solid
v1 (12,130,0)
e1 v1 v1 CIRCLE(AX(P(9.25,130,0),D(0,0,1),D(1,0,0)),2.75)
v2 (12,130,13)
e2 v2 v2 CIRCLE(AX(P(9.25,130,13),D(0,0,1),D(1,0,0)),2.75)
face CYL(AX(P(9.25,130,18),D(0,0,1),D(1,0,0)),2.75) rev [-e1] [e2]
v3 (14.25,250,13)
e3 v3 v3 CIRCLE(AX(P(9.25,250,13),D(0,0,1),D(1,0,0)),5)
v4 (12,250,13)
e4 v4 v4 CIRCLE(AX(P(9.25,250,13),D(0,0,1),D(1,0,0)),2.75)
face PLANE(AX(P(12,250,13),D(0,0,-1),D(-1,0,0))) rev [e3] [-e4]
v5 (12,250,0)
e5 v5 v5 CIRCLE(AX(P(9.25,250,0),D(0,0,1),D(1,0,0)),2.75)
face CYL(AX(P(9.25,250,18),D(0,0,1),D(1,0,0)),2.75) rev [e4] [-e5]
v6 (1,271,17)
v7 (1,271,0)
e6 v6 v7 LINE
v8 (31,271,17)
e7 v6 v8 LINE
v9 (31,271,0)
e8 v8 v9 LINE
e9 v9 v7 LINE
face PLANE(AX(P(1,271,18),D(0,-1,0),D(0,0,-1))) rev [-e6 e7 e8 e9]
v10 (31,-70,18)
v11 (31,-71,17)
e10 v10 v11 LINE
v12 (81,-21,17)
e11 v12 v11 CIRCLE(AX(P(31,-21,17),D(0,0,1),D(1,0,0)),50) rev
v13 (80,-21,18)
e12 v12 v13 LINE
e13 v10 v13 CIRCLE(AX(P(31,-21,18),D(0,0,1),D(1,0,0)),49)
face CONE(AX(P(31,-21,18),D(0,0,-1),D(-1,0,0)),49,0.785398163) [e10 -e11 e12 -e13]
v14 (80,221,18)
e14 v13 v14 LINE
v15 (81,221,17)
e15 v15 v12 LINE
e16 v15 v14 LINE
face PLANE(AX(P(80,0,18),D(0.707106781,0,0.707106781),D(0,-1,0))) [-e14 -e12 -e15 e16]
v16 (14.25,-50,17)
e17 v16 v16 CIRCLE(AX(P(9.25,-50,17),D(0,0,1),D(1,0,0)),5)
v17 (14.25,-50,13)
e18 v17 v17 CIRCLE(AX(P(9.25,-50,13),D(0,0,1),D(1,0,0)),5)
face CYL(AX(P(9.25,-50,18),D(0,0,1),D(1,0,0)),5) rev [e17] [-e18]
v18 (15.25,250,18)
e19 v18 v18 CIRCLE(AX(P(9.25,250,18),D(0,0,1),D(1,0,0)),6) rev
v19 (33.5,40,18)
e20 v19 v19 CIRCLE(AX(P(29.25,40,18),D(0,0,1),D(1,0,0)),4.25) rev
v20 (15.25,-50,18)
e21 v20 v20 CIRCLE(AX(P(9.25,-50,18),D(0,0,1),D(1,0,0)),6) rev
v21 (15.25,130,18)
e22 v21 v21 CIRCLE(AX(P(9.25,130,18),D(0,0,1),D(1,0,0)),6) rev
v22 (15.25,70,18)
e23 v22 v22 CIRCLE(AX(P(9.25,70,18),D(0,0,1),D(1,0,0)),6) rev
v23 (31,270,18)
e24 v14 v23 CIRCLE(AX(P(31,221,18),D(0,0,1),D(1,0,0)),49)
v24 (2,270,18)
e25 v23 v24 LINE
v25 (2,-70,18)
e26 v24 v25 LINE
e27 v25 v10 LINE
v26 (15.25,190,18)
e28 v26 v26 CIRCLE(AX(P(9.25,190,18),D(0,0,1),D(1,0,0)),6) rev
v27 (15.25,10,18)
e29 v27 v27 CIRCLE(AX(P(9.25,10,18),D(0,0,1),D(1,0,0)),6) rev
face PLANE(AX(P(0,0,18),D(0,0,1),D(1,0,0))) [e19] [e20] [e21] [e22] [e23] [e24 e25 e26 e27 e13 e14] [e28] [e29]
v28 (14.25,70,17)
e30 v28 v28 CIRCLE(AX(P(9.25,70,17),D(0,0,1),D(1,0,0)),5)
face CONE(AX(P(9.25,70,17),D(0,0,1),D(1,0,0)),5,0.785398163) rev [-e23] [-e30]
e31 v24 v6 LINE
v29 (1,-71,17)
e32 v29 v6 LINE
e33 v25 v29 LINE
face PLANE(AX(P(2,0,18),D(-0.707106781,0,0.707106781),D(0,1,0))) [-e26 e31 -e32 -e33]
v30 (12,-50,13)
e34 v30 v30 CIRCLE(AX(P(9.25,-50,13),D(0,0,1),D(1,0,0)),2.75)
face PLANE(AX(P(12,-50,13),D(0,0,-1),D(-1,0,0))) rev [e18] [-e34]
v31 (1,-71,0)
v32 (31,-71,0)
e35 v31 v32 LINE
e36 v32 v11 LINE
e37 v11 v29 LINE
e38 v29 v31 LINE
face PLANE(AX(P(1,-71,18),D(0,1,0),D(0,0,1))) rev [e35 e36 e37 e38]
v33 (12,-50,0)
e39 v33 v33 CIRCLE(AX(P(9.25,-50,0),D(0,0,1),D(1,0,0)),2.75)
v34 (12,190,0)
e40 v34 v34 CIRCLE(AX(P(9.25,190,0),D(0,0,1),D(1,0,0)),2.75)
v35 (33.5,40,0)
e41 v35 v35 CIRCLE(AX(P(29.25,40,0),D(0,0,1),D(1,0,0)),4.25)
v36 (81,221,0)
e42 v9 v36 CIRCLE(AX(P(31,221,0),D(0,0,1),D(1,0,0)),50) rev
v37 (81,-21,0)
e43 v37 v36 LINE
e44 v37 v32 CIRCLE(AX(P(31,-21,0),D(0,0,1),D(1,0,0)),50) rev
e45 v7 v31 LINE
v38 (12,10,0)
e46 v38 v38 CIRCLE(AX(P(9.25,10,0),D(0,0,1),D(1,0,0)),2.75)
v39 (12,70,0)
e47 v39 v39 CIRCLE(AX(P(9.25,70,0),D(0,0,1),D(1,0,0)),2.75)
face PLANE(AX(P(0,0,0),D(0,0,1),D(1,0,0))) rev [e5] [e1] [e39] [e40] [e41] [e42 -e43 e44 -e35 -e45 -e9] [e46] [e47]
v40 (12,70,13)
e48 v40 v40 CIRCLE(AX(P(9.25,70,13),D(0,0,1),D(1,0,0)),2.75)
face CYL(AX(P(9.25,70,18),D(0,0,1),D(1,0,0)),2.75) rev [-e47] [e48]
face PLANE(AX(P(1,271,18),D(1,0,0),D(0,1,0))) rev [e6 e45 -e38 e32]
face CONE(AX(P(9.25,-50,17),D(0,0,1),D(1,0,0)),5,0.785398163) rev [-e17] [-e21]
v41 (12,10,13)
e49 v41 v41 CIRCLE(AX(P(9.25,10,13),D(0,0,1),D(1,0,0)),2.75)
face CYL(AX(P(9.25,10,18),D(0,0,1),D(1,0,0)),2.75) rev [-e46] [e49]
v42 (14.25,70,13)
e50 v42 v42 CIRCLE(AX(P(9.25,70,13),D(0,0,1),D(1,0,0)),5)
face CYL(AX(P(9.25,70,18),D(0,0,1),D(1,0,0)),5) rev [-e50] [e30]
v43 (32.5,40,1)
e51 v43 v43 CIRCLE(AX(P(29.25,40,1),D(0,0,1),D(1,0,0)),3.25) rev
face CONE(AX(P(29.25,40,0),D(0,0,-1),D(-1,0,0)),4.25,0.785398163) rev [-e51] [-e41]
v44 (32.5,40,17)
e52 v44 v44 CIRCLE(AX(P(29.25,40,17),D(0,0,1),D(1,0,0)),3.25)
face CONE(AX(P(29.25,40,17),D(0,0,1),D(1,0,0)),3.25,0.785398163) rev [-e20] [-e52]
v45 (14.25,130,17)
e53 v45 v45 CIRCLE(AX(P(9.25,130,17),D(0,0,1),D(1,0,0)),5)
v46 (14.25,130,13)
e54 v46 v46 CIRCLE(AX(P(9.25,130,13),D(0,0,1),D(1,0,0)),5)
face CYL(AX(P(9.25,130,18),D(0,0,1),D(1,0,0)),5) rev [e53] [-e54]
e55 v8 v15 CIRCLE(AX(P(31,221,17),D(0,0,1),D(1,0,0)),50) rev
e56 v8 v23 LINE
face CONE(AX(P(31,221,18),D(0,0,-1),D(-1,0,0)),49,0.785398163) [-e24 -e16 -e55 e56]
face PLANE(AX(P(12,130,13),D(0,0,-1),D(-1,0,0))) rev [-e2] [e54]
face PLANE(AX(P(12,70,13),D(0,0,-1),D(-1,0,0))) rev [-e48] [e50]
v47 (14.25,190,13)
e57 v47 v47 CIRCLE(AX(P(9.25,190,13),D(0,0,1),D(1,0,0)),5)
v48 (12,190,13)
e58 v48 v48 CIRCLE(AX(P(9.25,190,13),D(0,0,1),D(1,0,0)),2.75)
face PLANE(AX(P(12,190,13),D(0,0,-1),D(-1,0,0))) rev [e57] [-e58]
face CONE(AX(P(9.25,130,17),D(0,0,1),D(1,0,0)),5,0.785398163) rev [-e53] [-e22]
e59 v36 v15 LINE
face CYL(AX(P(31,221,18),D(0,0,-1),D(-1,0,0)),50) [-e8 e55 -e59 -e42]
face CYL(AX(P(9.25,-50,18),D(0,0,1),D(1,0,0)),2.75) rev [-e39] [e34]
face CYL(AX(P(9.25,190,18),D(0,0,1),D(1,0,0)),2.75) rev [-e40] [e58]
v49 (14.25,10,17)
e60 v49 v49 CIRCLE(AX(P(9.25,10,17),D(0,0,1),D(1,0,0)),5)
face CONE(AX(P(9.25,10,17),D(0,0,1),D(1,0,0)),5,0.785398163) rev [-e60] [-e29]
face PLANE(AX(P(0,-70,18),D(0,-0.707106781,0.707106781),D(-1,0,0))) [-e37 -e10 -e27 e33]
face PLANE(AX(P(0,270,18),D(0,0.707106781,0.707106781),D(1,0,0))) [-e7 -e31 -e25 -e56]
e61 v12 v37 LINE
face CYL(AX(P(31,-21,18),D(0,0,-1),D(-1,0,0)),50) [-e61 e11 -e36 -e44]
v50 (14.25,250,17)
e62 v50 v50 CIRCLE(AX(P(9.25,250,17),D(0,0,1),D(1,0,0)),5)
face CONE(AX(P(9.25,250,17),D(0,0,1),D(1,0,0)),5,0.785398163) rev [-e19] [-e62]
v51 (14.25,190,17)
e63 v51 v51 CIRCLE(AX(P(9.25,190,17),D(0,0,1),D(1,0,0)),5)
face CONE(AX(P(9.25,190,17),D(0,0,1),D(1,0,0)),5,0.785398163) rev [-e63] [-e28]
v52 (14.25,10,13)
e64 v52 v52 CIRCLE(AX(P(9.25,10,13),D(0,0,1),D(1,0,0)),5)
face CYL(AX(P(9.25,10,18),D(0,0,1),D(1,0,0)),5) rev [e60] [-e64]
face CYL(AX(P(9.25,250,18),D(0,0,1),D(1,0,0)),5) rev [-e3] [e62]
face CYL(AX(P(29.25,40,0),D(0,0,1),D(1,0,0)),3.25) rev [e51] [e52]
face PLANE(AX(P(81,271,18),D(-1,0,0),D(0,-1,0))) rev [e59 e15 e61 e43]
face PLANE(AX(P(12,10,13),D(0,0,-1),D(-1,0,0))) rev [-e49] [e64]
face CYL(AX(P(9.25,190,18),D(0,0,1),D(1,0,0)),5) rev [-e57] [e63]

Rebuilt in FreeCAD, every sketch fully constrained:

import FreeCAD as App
import Part
import Sketcher
from FreeCAD import Vector
Q = App.Units.Quantity


def edges_at(feature, points):
    """Names of the edges that pass closest to the given points."""
    edges = feature.Shape.Edges
    near = lambda p: min(range(len(edges)), key=lambda i: edges[i].distToShape(Part.Vertex(*p))[0])
    return sorted({f"Edge{near(p) + 1}" for p in points})

doc = App.newDocument("Part")
params = doc.addObject("Spreadsheet::Sheet", "Params")
for row, (alias, value) in enumerate([
    ("sketch1_width", "80 mm"),
    ("sketch1_height", "342 mm"),
    ("pad1_length", "18 mm"),
    ("fillet_radius", "50 mm"),
    ("sketch2_diameter", "5.5 mm"),
    ("hole_diameter", "5.5 mm"),
    ("hole_depth", "28.347633 mm"),
    ("hole_cbore_diameter", "10 mm"),
    ("hole_cbore_depth", "5 mm"),
    ("chamfer_size", "1 mm"),
    ("sketch3_diameter", "6.5 mm"),
    ("chamfer2_size", "1 mm"),
], start=1):
    params.set(f"A{row}", alias)
    params.set(f"B{row}", "=" + value)
    params.setAlias(f"B{row}", alias)

body = doc.addObject("PartDesign::Body", "Body")

sketch1 = body.newObject("Sketcher::SketchObject", "Sketch")
sketch1.AttachmentSupport = (doc.getObject("XY_Plane"), [""])
sketch1.MapMode = "FlatFace"
sketch1.addGeometry([
    Part.LineSegment(Vector(1, 271, 0), Vector(1, -71, 0)),
    Part.LineSegment(Vector(1, -71, 0), Vector(81, -71, 0)),
    Part.LineSegment(Vector(81, -71, 0), Vector(81, 271, 0)),
    Part.LineSegment(Vector(81, 271, 0), Vector(1, 271, 0)),
], False)
sketch1.addConstraint([
    Sketcher.Constraint("Coincident", 0, 2, 1, 1),
    Sketcher.Constraint("Coincident", 1, 2, 2, 1),
    Sketcher.Constraint("Coincident", 2, 2, 3, 1),
    Sketcher.Constraint("Coincident", 3, 2, 0, 1),
    Sketcher.Constraint("Vertical", 0),
    Sketcher.Constraint("Horizontal", 1),
    Sketcher.Constraint("Vertical", 2),
    Sketcher.Constraint("Horizontal", 3),
    Sketcher.Constraint("DistanceX", 1, 1, 1, 2, Q("80 mm")),
    Sketcher.Constraint("DistanceY", 0, 2, 0, 1, Q("342 mm")),
    Sketcher.Constraint("DistanceX", -1, 1, 0, 2, Q("1 mm")),
    Sketcher.Constraint("DistanceY", 0, 2, -1, 1, Q("71 mm")),
])
sketch1.setExpression("Constraints[8]", "Params.sketch1_width")
sketch1.setExpression("Constraints[9]", "Params.sketch1_height")
pad1 = body.newObject("PartDesign::Pad", "Pad")
pad1.Profile = sketch1
pad1.setExpression("Length", "Params.pad1_length")
doc.recompute()

fillet = body.newObject("PartDesign::Fillet", "Fillet")
fillet.Base = (pad1, edges_at(pad1, [(81, 271, 9), (81, -71, 9)]))
fillet.setExpression("Radius", "Params.fillet_radius")

sketch2 = body.newObject("Sketcher::SketchObject", "Sketch001")
sketch2.AttachmentSupport = (doc.getObject("XY_Plane"), [""])
sketch2.MapMode = "FlatFace"
sketch2.AttachmentOffset = App.Placement(Vector(0, 0, 18), App.Rotation())
sketch2.addGeometry([
    Part.Circle(Vector(9.25, 250, 0), Vector(0, 0, 1), 2.75),
    Part.Circle(Vector(9.25, 190, 0), Vector(0, 0, 1), 2.75),
    Part.Circle(Vector(9.25, 130, 0), Vector(0, 0, 1), 2.75),
    Part.Circle(Vector(9.25, 70, 0), Vector(0, 0, 1), 2.75),
    Part.Circle(Vector(9.25, 10, 0), Vector(0, 0, 1), 2.75),
    Part.Circle(Vector(9.25, -50, 0), Vector(0, 0, 1), 2.75),
], False)
sketch2.addConstraint([
    Sketcher.Constraint("Equal", 0, 1),
    Sketcher.Constraint("Equal", 1, 2),
    Sketcher.Constraint("Equal", 2, 3),
    Sketcher.Constraint("Equal", 3, 4),
    Sketcher.Constraint("Equal", 4, 5),
    Sketcher.Constraint("Vertical", 0, 3, 1, 3),
    Sketcher.Constraint("Vertical", 1, 3, 2, 3),
    Sketcher.Constraint("Vertical", 2, 3, 3, 3),
    Sketcher.Constraint("Vertical", 3, 3, 4, 3),
    Sketcher.Constraint("Vertical", 4, 3, 5, 3),
    Sketcher.Constraint("Diameter", 0, Q("5.5 mm")),
    Sketcher.Constraint("DistanceY", -1, 1, 0, 3, Q("250 mm")),
    Sketcher.Constraint("DistanceY", -1, 1, 1, 3, Q("190 mm")),
    Sketcher.Constraint("DistanceY", -1, 1, 2, 3, Q("130 mm")),
    Sketcher.Constraint("DistanceY", -1, 1, 3, 3, Q("70 mm")),
    Sketcher.Constraint("DistanceY", -1, 1, 4, 3, Q("10 mm")),
    Sketcher.Constraint("DistanceY", 5, 3, -1, 1, Q("50 mm")),
    Sketcher.Constraint("DistanceX", -1, 1, 0, 3, Q("9.25 mm")),
])
sketch2.setExpression("Constraints[10]", "Params.sketch2_diameter")
doc.recompute()
hole = body.newObject("PartDesign::Hole", "Hole")
hole.Profile = sketch2
hole.ThreadType = "None"
hole.setExpression("Diameter", "Params.hole_diameter")
hole.DepthType = "Dimension"
hole.setExpression("Depth", "Params.hole_depth")
hole.DrillPoint = "Angled"
hole.DrillPointAngle = 118
hole.HoleCutType = "Counterbore"
hole.setExpression("HoleCutDiameter", "Params.hole_cbore_diameter")
hole.setExpression("HoleCutDepth", "Params.hole_cbore_depth")
doc.recompute()

chamfer = body.newObject("PartDesign::Chamfer", "Chamfer")
chamfer.Base = (hole, edges_at(hole, [
    (16, 271, 18),
    (81, 100, 18),
    (66.355, -56.355, 18),
    (66.355, 256.355, 18),
    (4.25, -50, 18),
    (4.25, 10, 18),
    (4.25, 70, 18),
    (1, 100, 18),
    (4.25, 130, 18),
    (4.25, 190, 18),
    (4.25, 250, 18),
    (16, -71, 18),
]))
chamfer.setExpression("Size", "Params.chamfer_size")

sketch3 = body.newObject("Sketcher::SketchObject", "Sketch002")
sketch3.AttachmentSupport = (doc.getObject("XY_Plane"), [""])
sketch3.MapMode = "FlatFace"
sketch3.AttachmentOffset = App.Placement(Vector(0, 0, 18), App.Rotation())
sketch3.addGeometry(Part.Circle(Vector(29.25, 40, 0), Vector(0, 0, 1), 3.25), False)
sketch3.addConstraint([
    Sketcher.Constraint("Diameter", 0, Q("6.5 mm")),
    Sketcher.Constraint("DistanceY", -1, 1, 0, 3, Q("40 mm")),
    Sketcher.Constraint("DistanceX", -1, 1, 0, 3, Q("29.25 mm")),
])
sketch3.setExpression("Constraints[0]", "Params.sketch3_diameter")
pocket1 = body.newObject("PartDesign::Pocket", "Pocket")
pocket1.Profile = sketch3
pocket1.Type = "ThroughAll"
doc.recompute()

chamfer2 = body.newObject("PartDesign::Chamfer", "Chamfer001")
chamfer2.Base = (pocket1, edges_at(pocket1, [(26, 40, 0), (26, 40, 18)]))
chamfer2.setExpression("Size", "Params.chamfer2_size")

doc.recompute()
